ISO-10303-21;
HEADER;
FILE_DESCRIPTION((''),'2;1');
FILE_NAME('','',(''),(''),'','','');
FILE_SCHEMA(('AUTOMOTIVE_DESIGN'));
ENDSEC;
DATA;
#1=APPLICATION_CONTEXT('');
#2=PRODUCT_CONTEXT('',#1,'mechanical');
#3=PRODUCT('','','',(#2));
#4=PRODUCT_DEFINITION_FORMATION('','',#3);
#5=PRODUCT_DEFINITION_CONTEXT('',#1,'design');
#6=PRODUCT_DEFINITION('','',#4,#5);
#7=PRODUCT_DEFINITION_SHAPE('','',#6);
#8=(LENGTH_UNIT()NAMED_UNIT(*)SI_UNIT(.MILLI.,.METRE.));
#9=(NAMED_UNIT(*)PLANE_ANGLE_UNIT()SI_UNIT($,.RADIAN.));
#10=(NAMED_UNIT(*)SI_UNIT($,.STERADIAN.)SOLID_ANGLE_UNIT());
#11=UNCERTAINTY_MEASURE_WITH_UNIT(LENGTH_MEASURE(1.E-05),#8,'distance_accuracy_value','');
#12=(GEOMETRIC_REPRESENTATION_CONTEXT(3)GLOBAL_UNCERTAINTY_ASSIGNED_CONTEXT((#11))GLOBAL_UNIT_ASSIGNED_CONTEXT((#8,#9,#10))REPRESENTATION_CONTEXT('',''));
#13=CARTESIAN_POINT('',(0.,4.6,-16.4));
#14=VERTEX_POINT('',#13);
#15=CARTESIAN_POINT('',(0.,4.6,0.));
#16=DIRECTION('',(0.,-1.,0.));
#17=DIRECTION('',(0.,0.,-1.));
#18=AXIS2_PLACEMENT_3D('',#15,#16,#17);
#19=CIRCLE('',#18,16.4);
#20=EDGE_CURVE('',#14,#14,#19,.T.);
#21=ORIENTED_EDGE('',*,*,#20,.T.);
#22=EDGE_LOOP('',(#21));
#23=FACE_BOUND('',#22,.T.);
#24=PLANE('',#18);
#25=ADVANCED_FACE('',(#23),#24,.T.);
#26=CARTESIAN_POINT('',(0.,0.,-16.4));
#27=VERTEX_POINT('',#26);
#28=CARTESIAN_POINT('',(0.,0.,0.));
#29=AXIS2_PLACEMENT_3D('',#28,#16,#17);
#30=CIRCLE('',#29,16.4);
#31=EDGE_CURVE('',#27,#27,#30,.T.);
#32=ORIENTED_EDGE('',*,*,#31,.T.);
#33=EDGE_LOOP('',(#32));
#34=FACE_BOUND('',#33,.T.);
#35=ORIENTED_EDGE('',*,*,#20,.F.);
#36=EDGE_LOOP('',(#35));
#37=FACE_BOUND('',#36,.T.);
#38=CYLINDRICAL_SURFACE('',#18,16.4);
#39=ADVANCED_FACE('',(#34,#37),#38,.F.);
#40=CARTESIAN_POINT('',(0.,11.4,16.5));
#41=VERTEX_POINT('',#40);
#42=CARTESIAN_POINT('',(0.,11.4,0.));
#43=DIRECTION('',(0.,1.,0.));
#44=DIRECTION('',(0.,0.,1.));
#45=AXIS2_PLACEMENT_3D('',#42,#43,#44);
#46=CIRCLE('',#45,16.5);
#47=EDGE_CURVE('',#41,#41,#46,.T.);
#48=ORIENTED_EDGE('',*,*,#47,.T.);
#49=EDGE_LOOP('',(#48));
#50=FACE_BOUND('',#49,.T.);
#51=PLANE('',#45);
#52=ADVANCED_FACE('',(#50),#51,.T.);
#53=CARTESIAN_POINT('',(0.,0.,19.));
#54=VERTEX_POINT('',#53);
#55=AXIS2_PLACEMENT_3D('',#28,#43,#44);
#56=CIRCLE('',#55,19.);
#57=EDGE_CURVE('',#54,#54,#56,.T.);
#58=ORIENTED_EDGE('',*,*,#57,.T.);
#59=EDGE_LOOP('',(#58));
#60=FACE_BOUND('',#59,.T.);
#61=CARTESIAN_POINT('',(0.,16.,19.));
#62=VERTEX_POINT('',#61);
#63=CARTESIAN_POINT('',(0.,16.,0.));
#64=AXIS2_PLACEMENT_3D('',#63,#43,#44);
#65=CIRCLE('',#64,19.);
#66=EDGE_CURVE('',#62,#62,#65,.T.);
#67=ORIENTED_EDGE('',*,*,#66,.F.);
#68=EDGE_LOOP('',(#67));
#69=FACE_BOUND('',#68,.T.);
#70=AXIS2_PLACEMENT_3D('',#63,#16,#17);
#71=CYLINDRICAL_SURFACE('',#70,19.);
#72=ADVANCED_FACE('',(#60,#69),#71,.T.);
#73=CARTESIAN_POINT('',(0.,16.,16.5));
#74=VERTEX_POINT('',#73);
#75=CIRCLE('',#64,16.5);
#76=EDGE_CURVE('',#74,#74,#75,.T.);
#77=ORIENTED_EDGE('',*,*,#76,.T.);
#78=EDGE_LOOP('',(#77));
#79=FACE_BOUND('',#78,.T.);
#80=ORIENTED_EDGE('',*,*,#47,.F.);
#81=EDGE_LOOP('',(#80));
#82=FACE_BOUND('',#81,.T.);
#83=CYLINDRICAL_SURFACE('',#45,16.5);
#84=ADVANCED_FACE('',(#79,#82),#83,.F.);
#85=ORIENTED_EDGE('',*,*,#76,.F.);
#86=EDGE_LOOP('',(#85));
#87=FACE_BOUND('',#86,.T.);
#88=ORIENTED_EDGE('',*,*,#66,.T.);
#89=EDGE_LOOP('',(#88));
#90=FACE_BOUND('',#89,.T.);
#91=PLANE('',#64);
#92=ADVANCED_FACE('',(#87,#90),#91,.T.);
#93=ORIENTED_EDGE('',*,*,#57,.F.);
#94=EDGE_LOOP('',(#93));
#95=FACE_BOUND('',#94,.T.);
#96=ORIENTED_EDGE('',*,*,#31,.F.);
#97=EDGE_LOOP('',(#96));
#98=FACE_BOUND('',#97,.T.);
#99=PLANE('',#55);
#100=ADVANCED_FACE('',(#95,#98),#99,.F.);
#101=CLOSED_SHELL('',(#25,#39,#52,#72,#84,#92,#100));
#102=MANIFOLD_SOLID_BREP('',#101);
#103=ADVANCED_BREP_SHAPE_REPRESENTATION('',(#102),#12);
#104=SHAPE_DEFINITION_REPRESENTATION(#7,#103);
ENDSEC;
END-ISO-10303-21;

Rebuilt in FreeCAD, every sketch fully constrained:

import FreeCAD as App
import Part
import Sketcher

V = App.Vector

doc = App.newDocument("Part")
params = doc.addObject("Spreadsheet::Sheet", "Params")
for row, (alias, value) in enumerate([
    ("sketch1_diameter", "38 mm"),
    ("pad1_length", "16 mm"),
    ("sketch2_diameter", "33 mm"),
    ("pocket1_length", "4.6 mm"),
    ("sketch3_diameter", "32.8 mm"),
    ("pocket2_length", "4.6 mm"),
], start=1):
    params.set(f"A{row}", alias)
    params.set(f"B{row}", "=" + value)
    params.setAlias(f"B{row}", alias)

body = doc.addObject("PartDesign::Body", "Body")

# Sketch on XZ plane
sketch1 = body.newObject("Sketcher::SketchObject", "Sketch")
sketch1.AttachmentSupport = (doc.getObject("XZ_Plane"), [""])
sketch1.MapMode = "FlatFace"
sketch1.addGeometry(Part.Circle(V(0, 0, 0), V(0, 0, 1), 19), False)
sketch1.addConstraint([
    Sketcher.Constraint("Coincident", 0, 3, -1, 1),
    Sketcher.Constraint("Diameter", 0, 38.0),
])
sketch1.setExpression("Constraints[1]", "Params.sketch1_diameter")
pad1 = body.newObject("PartDesign::Pad", "Pad")
pad1.Profile = sketch1
pad1.setExpression("Length", "Params.pad1_length")
pad1.Reversed = True

# Sketch on XZ plane
sketch2 = body.newObject("Sketcher::SketchObject", "Sketch001")
sketch2.AttachmentSupport = (doc.getObject("XZ_Plane"), [""])
sketch2.MapMode = "FlatFace"
sketch2.AttachmentOffset = App.Placement(V(0, 0, -16), App.Rotation())
sketch2.addGeometry(Part.Circle(V(0, 0, 0), V(0, 0, 1), 16), False)
sketch2.addConstraint([
    Sketcher.Constraint("Coincident", 0, 3, -1, 1),
    Sketcher.Constraint("Diameter", 0, 33.0),
])
sketch2.setExpression("Constraints[1]", "Params.sketch2_diameter")
pocket1 = body.newObject("PartDesign::Pocket", "Pocket")
pocket1.Profile = sketch2
pocket1.setExpression("Length", "Params.pocket1_length")
pocket1.Reversed = True

# Sketch on XZ plane
sketch3 = body.newObject("Sketcher::SketchObject", "Sketch002")
sketch3.AttachmentSupport = (doc.getObject("XZ_Plane"), [""])
sketch3.MapMode = "FlatFace"
sketch3.addGeometry(Part.Circle(V(0, 0, 0), V(0, 0, 1), 16), False)
sketch3.addConstraint([
    Sketcher.Constraint("Coincident", 0, 3, -1, 1),
    Sketcher.Constraint("Diameter", 0, 32.8),
])
sketch3.setExpression("Constraints[1]", "Params.sketch3_diameter")
pocket2 = body.newObject("PartDesign::Pocket", "Pocket001")
pocket2.Profile = sketch3
pocket2.setExpression("Length", "Params.pocket2_length")

doc.recompute()
